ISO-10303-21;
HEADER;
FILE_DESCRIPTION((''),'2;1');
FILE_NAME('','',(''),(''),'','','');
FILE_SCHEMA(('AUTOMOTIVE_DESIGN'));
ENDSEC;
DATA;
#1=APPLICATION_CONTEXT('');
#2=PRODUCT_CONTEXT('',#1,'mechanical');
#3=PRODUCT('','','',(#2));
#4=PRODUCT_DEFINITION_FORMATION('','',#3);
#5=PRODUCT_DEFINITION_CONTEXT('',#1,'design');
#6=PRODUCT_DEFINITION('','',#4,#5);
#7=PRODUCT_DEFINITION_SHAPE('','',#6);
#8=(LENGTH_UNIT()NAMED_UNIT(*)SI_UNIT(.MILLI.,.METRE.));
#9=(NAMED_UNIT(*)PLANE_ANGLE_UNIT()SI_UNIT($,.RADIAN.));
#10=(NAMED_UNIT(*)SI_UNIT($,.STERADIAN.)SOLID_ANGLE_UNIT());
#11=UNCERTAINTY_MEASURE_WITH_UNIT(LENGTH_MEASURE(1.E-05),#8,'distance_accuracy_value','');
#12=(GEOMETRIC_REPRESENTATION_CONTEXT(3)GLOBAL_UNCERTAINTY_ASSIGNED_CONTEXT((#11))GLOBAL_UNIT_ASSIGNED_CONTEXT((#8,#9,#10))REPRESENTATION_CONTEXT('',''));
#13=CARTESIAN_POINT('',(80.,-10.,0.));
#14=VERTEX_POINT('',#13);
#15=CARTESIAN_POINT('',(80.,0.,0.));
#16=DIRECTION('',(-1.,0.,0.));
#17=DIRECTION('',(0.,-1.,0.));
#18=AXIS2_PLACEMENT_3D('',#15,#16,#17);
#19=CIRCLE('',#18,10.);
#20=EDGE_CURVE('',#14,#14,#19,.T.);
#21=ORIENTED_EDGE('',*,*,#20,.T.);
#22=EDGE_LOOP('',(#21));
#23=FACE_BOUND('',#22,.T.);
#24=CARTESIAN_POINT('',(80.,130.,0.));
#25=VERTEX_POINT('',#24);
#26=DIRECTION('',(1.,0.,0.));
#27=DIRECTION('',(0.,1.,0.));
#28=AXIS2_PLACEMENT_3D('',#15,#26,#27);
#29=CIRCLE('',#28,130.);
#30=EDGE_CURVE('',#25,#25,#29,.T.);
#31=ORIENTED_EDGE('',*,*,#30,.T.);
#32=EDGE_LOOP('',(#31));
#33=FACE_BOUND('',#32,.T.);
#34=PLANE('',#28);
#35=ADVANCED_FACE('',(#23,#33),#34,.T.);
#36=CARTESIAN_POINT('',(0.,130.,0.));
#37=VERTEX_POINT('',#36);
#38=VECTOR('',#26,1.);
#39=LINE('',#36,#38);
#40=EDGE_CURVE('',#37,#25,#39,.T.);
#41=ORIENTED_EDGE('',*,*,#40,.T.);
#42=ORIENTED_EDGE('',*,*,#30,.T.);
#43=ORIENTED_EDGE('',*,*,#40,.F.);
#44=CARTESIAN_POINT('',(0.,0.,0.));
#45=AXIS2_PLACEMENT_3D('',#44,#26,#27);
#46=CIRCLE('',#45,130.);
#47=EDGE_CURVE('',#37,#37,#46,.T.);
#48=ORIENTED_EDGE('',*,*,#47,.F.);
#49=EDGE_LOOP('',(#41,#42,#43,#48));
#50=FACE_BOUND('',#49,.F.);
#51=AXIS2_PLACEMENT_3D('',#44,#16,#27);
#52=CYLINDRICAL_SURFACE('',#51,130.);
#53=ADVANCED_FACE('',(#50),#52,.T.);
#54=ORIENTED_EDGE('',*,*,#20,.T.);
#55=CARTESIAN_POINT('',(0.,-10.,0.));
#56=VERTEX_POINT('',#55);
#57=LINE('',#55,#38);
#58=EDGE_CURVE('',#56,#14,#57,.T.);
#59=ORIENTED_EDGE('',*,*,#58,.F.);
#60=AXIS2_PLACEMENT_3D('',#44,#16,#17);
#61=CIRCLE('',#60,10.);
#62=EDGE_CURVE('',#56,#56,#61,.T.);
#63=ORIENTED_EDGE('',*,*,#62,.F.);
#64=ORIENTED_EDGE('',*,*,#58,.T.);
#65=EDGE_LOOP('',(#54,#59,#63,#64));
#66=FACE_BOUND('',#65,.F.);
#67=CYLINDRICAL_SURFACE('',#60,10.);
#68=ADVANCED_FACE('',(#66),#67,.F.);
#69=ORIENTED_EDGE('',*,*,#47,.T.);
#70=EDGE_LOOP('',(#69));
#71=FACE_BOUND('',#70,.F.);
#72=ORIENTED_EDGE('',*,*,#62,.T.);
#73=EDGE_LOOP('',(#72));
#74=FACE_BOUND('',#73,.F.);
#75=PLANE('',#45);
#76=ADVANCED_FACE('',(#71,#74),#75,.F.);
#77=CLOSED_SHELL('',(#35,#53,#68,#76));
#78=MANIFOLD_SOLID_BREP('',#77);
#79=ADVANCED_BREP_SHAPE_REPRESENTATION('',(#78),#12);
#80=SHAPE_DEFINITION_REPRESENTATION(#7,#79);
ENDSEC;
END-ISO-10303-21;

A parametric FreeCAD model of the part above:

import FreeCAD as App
import Part
import Sketcher

V = App.Vector

doc = App.newDocument("Part")
body = doc.addObject("PartDesign::Body", "Body")

sketch1 = body.newObject("Sketcher::SketchObject", "Sketch")
sketch1.AttachmentSupport = (doc.getObject("YZ_Plane"), [""])
sketch1.MapMode = "FlatFace"
sketch1.addGeometry(Part.Circle(V(0, 0, 0), V(0, 0, 1), 130), False)
sketch1.addConstraint(Sketcher.Constraint("Coincident", 0, 3, -1, 1))
sketch1.addConstraint(Sketcher.Constraint("Diameter", 0, 260.0))
pad1 = body.newObject("PartDesign::Pad", "Pad")
pad1.Profile = sketch1
pad1.Length = 80

sketch2 = body.newObject("Sketcher::SketchObject", "Sketch001")
sketch2.AttachmentSupport = (doc.getObject("YZ_Plane"), [""])
sketch2.MapMode = "FlatFace"
sketch2.addGeometry(Part.Circle(V(0, 0, 0), V(0, 0, 1), 10), False)
sketch2.addConstraint(Sketcher.Constraint("Coincident", 0, 3, -1, 1))
sketch2.addConstraint(Sketcher.Constraint("Diameter", 0, 20.0))
pocket1 = body.newObject("PartDesign::Pocket", "Pocket")
pocket1.Profile = sketch2
pocket1.Type = "ThroughAll"
pocket1.Reversed = True

doc.recompute()
